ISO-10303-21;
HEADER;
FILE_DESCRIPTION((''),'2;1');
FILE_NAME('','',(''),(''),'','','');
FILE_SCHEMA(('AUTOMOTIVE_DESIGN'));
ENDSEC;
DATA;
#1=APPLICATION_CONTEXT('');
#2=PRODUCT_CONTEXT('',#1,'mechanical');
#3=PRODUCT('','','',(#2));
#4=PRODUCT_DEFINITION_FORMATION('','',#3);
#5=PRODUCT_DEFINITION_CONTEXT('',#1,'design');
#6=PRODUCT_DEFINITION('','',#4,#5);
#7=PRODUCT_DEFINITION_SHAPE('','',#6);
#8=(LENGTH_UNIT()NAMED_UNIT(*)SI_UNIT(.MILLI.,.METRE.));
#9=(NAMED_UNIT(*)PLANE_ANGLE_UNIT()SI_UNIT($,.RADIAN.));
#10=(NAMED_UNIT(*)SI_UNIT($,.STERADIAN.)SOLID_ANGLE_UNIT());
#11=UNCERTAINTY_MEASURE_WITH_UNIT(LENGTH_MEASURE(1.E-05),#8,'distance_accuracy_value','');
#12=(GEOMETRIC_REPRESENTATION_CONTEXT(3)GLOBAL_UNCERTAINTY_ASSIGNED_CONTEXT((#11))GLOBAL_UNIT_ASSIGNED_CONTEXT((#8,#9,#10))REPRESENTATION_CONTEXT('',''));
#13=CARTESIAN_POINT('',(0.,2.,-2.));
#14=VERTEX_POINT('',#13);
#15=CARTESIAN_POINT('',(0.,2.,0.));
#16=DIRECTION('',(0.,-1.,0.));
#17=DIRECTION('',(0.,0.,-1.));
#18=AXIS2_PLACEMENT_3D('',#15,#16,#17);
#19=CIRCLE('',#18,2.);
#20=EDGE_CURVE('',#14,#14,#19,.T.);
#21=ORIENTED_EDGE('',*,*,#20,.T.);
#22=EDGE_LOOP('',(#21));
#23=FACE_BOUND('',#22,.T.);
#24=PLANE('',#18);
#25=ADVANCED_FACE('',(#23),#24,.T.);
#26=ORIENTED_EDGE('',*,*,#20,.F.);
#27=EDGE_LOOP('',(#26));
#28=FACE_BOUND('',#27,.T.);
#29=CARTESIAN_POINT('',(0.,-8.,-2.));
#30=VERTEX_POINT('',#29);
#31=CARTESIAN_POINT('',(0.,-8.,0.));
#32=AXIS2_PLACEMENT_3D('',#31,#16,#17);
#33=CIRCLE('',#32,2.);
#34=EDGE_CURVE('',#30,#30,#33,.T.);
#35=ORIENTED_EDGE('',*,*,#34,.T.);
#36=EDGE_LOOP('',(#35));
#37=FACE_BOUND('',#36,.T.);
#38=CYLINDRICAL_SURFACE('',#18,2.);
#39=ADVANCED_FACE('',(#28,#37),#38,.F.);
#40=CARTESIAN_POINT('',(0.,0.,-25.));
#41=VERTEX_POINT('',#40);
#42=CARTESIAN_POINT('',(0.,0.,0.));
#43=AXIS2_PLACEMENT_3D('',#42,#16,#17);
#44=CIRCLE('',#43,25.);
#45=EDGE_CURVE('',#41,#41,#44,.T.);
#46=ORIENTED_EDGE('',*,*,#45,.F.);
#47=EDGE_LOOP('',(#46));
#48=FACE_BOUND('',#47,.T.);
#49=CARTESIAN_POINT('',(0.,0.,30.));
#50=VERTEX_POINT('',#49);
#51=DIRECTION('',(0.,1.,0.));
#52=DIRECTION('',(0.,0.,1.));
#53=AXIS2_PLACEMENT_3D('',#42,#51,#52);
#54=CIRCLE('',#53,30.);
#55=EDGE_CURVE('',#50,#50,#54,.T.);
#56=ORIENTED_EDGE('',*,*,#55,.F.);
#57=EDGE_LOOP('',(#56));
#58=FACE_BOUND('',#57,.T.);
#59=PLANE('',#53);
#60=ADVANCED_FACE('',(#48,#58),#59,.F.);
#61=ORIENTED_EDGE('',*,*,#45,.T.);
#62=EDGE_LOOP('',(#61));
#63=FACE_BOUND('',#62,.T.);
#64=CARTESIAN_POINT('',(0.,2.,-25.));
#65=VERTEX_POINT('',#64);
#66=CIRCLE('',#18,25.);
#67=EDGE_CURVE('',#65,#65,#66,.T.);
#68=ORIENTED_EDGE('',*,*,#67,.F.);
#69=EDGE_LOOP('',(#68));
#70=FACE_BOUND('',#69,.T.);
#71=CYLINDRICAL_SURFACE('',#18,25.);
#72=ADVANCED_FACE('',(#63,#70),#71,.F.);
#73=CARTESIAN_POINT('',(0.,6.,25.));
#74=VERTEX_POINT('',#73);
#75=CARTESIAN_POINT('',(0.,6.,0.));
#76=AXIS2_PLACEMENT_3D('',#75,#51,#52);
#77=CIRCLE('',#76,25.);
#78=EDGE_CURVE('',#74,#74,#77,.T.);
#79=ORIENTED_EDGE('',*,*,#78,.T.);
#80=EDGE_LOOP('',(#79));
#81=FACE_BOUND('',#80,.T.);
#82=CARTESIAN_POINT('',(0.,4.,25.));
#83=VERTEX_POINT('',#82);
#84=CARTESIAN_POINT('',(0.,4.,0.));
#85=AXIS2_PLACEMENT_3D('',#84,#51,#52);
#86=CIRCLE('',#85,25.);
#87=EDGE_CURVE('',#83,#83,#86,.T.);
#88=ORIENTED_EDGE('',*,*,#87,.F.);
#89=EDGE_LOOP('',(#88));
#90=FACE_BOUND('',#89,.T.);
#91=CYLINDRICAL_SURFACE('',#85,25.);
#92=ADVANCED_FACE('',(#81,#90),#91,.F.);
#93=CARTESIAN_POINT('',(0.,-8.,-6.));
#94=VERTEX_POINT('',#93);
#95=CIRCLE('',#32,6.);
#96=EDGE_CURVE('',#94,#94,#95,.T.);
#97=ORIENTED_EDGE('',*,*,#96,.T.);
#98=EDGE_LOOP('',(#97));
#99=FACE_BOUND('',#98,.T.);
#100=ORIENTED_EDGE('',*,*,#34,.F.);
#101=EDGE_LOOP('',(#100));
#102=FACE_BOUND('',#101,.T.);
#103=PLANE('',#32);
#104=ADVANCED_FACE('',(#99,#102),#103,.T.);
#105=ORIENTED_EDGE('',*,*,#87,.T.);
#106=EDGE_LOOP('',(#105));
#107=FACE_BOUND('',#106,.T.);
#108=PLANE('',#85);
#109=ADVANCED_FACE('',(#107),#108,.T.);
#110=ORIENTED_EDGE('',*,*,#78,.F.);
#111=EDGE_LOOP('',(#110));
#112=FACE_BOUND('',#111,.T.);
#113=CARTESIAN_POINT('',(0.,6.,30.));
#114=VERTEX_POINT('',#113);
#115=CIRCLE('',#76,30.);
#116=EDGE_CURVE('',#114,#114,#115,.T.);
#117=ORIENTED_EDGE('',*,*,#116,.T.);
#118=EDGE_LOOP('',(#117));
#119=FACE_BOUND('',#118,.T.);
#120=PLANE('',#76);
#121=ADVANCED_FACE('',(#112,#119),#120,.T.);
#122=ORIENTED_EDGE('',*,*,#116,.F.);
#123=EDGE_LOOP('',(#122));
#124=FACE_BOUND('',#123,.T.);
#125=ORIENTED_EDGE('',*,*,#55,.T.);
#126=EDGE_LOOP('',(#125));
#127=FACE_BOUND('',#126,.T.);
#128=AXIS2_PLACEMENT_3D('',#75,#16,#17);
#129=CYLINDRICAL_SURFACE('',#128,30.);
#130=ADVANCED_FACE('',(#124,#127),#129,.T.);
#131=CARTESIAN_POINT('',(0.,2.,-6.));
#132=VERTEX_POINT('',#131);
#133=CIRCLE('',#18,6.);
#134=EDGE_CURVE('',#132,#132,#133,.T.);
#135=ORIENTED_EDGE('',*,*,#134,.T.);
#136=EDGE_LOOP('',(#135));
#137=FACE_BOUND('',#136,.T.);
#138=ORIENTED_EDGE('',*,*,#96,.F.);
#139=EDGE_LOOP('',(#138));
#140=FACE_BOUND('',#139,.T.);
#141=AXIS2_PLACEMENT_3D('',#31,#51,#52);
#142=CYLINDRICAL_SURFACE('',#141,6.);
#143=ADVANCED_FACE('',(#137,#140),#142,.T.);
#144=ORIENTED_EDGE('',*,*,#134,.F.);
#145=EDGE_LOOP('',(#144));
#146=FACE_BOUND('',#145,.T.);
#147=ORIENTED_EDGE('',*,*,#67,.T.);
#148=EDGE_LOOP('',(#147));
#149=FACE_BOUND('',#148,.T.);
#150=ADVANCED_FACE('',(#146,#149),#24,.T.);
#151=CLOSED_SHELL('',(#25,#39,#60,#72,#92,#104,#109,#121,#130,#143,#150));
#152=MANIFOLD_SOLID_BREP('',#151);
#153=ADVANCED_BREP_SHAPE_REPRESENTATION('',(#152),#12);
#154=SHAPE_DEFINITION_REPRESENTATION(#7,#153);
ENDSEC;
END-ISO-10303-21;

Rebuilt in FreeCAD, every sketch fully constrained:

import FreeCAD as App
import Part
import Sketcher

doc = App.newDocument("Part")
body = doc.addObject("PartDesign::Body", "Body")

sketch1 = body.newObject("Sketcher::SketchObject", "Sketch")
sketch1.AttachmentSupport = (doc.getObject("XZ_Plane"), [""])
sketch1.MapMode = "FlatFace"
sketch1.addGeometry(Part.Circle(App.Vector(0, 0, 0), App.Vector(0, 0, 1), 30), False)
sketch1.addConstraint([
    Sketcher.Constraint("Coincident", 0, 3, -1, 1),
    Sketcher.Constraint("Diameter", 0, 60.0),
])
pad1 = body.newObject("PartDesign::Pad", "Pad")
pad1.Profile = sketch1
pad1.Length = 6
pad1.Reversed = True

sketch2 = body.newObject("Sketcher::SketchObject", "Sketch001")
sketch2.AttachmentSupport = (doc.getObject("XZ_Plane"), [""])
sketch2.MapMode = "FlatFace"
sketch2.addGeometry(Part.Circle(App.Vector(0, 0, 0), App.Vector(0, 0, 1), 25), False)
sketch2.addConstraint([
    Sketcher.Constraint("Coincident", 0, 3, -1, 1),
    Sketcher.Constraint("Diameter", 0, 50.0),
])
pocket1 = body.newObject("PartDesign::Pocket", "Pocket")
pocket1.Profile = sketch2
pocket1.Length = 2

sketch3 = body.newObject("Sketcher::SketchObject", "Sketch002")
sketch3.AttachmentSupport = (doc.getObject("XZ_Plane"), [""])
sketch3.MapMode = "FlatFace"
sketch3.AttachmentOffset = App.Placement(App.Vector(0, 0, -4), App.Rotation())
sketch3.addGeometry(Part.Circle(App.Vector(0, 0, 0), App.Vector(0, 0, 1), 25), False)
sketch3.addConstraint([
    Sketcher.Constraint("Coincident", 0, 3, -1, 1),
    Sketcher.Constraint("Diameter", 0, 50.0),
])
pocket2 = body.newObject("PartDesign::Pocket", "Pocket001")
pocket2.Profile = sketch3
pocket2.Length = 2

sketch4 = body.newObject("Sketcher::SketchObject", "Sketch003")
sketch4.AttachmentSupport = (doc.getObject("XZ_Plane"), [""])
sketch4.MapMode = "FlatFace"
sketch4.AttachmentOffset = App.Placement(App.Vector(0, 0, -2), App.Rotation())
sketch4.addGeometry(Part.Circle(App.Vector(0, 0, 0), App.Vector(0, 0, 1), 6), False)
sketch4.addConstraint([
    Sketcher.Constraint("Coincident", 0, 3, -1, 1),
    Sketcher.Constraint("Diameter", 0, 12.0),
])
pad2 = body.newObject("PartDesign::Pad", "Pad001")
pad2.Profile = sketch4
pad2.Length = 10

sketch5 = body.newObject("Sketcher::SketchObject", "Sketch004")
sketch5.AttachmentSupport = (doc.getObject("XZ_Plane"), [""])
sketch5.MapMode = "FlatFace"
sketch5.AttachmentOffset = App.Placement(App.Vector(0, 0, 8), App.Rotation())
sketch5.addGeometry(Part.Circle(App.Vector(0, 0, 0), App.Vector(0, 0, 1), 2), False)
sketch5.addConstraint([
    Sketcher.Constraint("Coincident", 0, 3, -1, 1),
    Sketcher.Constraint("Diameter", 0, 4.0),
])
pocket3 = body.newObject("PartDesign::Pocket", "Pocket002")
pocket3.Profile = sketch5
pocket3.Length = 10

doc.recompute()
